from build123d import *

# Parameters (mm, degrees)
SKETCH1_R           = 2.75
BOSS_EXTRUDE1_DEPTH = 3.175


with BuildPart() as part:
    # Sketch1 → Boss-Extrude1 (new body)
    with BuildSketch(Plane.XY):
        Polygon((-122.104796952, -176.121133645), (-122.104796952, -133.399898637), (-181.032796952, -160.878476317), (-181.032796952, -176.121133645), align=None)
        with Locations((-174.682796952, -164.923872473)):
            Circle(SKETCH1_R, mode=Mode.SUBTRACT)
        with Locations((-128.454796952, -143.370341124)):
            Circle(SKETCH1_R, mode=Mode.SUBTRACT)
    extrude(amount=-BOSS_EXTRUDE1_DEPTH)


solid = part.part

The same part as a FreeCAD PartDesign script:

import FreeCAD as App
import Part
import Sketcher
from FreeCAD import Vector
Q = App.Units.Quantity

doc = App.newDocument("Part")
params = doc.addObject("Spreadsheet::Sheet", "Params")
for row, (alias, value) in enumerate([
    ("sketch1_width", "2.32 in"),
    ("pad1_length", "0.125 in"),
], start=1):
    params.set(f"A{row}", alias)
    params.set(f"B{row}", "=" + value)
    params.setAlias(f"B{row}", alias)

body = doc.addObject("PartDesign::Body", "Body")

sketch1 = body.newObject("Sketcher::SketchObject", "Sketch")
sketch1.AttachmentSupport = (doc.getObject("XY_Plane"), [""])
sketch1.MapMode = "FlatFace"
sketch1.addGeometry([
    Part.LineSegment(Vector(-122.1, -176.1, 0), Vector(-122.1, -133.4, 0)),
    Part.LineSegment(Vector(-122.1, -133.4, 0), Vector(-181, -160.9, 0)),
    Part.LineSegment(Vector(-181, -160.9, 0), Vector(-181, -176.1, 0)),
    Part.LineSegment(Vector(-181, -176.1, 0), Vector(-122.1, -176.1, 0)),
    Part.Circle(Vector(-174.7, -164.9, 0), Vector(0, 0, 1), 2.8),
    Part.Circle(Vector(-128.5, -143.4, 0), Vector(0, 0, 1), 2.8),
], False)
sketch1.addConstraint([
    Sketcher.Constraint("Coincident", 0, 2, 1, 1),
    Sketcher.Constraint("Coincident", 1, 2, 2, 1),
    Sketcher.Constraint("Coincident", 2, 2, 3, 1),
    Sketcher.Constraint("Coincident", 3, 2, 0, 1),
    Sketcher.Constraint("Vertical", 0),
    Sketcher.Constraint("Vertical", 2),
    Sketcher.Constraint("Horizontal", 3),
    Sketcher.Constraint("Equal", 4, 5),
    Sketcher.Constraint("Angle", 1, Q("-155 deg")),
    Sketcher.Constraint("DistanceX", 3, 1, 3, 2, Q("2.32 in")),
    Sketcher.Constraint("Diameter", 4, 5.5),
    Sketcher.Constraint("DistanceX", 4, 3, 5, 3, Q("1.82 in")),
    Sketcher.Constraint("DistanceX", 5, 3, 0, 2, Q("0.25 in")),
    Sketcher.Constraint("DistanceY", 0, 2, -1, 1, 133.399899),
    Sketcher.Constraint("DistanceY", 0, 1, 0, 2, 42.721235),
    Sketcher.Constraint("DistanceY", 5, 3, -1, 1, 143.370341),
    Sketcher.Constraint("DistanceY", 4, 3, 5, 3, 21.553531),
    Sketcher.Constraint("DistanceX", 4, 3, -1, 1, 174.682797),
])
sketch1.setExpression("Constraints[9]", "Params.sketch1_width")
pad1 = body.newObject("PartDesign::Pad", "Pad")
pad1.Profile = sketch1
pad1.setExpression("Length", "Params.pad1_length")
pad1.Reversed = True

doc.recompute()
